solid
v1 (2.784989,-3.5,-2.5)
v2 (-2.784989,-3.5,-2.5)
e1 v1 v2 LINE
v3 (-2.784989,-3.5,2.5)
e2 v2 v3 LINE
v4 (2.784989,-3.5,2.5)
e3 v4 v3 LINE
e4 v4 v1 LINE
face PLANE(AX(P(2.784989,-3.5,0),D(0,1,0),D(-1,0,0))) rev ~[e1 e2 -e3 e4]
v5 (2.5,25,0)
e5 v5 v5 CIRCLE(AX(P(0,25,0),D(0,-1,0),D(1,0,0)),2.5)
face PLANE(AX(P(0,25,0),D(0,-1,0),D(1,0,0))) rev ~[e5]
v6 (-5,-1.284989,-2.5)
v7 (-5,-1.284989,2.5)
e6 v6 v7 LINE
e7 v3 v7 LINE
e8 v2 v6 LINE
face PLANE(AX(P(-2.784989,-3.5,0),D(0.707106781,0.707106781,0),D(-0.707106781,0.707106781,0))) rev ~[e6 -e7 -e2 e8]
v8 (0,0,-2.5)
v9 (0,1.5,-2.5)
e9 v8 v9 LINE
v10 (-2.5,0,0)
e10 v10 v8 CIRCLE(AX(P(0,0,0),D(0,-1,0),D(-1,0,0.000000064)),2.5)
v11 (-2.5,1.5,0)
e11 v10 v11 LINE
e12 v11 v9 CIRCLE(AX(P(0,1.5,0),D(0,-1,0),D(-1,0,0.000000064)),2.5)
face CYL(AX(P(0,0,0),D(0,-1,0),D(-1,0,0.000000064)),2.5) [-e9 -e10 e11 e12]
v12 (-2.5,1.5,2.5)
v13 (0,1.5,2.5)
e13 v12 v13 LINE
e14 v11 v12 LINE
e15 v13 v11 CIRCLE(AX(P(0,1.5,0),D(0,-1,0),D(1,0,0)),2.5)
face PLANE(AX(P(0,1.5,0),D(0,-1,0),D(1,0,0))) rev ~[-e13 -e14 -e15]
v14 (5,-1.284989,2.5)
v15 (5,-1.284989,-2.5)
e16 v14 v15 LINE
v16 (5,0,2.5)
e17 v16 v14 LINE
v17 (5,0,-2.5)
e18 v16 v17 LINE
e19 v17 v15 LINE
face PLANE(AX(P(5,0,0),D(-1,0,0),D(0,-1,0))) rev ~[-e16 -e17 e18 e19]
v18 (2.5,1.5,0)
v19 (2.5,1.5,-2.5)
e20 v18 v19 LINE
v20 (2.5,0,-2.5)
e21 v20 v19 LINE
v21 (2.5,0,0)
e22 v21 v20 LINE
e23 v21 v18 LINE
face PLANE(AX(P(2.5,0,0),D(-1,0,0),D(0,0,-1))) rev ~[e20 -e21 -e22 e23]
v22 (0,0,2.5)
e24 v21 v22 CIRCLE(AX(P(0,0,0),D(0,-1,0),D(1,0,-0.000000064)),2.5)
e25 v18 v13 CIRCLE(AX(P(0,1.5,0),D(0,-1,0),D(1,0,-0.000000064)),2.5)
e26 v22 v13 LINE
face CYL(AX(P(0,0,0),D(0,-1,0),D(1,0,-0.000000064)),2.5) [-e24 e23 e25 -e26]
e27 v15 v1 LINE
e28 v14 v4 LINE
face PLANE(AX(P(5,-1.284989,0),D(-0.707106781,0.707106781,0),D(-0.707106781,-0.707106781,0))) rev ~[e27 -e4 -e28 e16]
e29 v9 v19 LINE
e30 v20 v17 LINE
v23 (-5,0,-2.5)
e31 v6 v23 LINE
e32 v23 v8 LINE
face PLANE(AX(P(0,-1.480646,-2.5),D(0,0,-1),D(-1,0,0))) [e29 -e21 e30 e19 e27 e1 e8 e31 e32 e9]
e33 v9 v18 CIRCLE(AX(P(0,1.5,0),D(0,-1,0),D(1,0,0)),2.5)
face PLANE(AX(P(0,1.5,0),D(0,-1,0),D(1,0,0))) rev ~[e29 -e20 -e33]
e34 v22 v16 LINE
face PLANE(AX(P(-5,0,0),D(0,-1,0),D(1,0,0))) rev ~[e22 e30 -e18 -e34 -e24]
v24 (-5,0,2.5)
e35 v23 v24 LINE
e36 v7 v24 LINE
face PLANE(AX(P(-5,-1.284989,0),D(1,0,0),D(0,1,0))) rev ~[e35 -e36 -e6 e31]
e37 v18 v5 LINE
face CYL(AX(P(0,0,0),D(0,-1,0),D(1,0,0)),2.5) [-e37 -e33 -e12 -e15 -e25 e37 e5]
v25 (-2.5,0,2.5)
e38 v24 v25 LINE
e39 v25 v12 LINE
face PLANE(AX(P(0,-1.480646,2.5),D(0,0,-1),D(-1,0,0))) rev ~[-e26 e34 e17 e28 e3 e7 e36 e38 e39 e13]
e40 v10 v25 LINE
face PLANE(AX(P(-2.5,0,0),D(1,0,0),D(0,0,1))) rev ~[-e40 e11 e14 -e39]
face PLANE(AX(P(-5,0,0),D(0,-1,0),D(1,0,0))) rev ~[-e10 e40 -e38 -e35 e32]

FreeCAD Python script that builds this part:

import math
import FreeCAD as App
import Part
import Sketcher

V = App.Vector
Q = App.Units.Quantity


def add_polygon(sketch, points):
    """Adds a closed chain of lines whose ends are joined by coincident constraints."""
    first, n = sketch.GeometryCount, len(points)
    for a, b in zip(points, points[1:] + points[:1]):
        sketch.addGeometry(Part.LineSegment(App.Vector(*a, 0), App.Vector(*b, 0)), False)
    for i in range(n):
        sketch.addConstraint(Sketcher.Constraint("Coincident", first + i, 2, first + (i + 1) % n, 1))

doc = App.newDocument("Part")
body = doc.addObject("PartDesign::Body", "Body")

# Sketch on XY plane
sketch1 = body.newObject("Sketcher::SketchObject", "Sketch")
sketch1.AttachmentSupport = (doc.getObject("XY_Plane"), [""])
sketch1.MapMode = "FlatFace"
add_polygon(sketch1, [(5, 0), (-5, 0), (-5, -1.3), (-2.8, -3.5), (2.8, -3.5), (5, -1.3)])  # lines 0-5
sketch1.addConstraint([
    Sketcher.Constraint("Horizontal", 0),
    Sketcher.Constraint("Vertical", 1),
    Sketcher.Constraint("Horizontal", 3),
    Sketcher.Constraint("Vertical", 5),
    Sketcher.Constraint("Symmetric", 0, 2, 5, 2, -1, 1),
    Sketcher.Constraint("Perpendicular", 2, 4),
    Sketcher.Constraint("Horizontal", 1, 2, 4, 2),
    Sketcher.Constraint("Equal", 2, 4),
    Sketcher.Constraint("DistanceX", 0, 2, 0, 1, Q("10 mm")),
    Sketcher.Constraint("DistanceY", 2, 2, -1, 1, Q("3.5 mm")),
    Sketcher.Constraint("Distance", 2, Q("3.132499 mm")),
])
pad1 = body.newObject("PartDesign::Pad", "Pad")
pad1.Profile = sketch1
pad1.Length = 5
pad1.Midplane = True

# Sketch on XZ plane
sketch2 = body.newObject("Sketcher::SketchObject", "Sketch001")
sketch2.AttachmentSupport = (doc.getObject("XZ_Plane"), [""])
sketch2.MapMode = "FlatFace"
sketch2.addGeometry([
    Part.ArcOfCircle(Part.Circle(V(0, 0, 0), V(0, 0, 1), 2.5), math.radians(180), math.radians(270)),  # 0
    Part.LineSegment(V(0, -2.5, 0), V(2.5, -2.5, 0)),  # 1
    Part.LineSegment(V(2.5, -2.5, 0), V(2.5, 0, 0)),  # 2
    Part.ArcOfCircle(Part.Circle(V(0, 0, 0), V(0, 0, 1), 2.5), math.radians(0), math.radians(90)),  # 3
    Part.LineSegment(V(0, 2.5, 0), V(-2.5, 2.5, 0)),  # 4
    Part.LineSegment(V(-2.5, 2.5, 0), V(-2.5, 0, 0)),  # 5
], False)
sketch2.addConstraint([
    Sketcher.Constraint("Tangent", 0, 2, 1, 1),
    Sketcher.Constraint("Coincident", 1, 2, 2, 1),
    Sketcher.Constraint("Tangent", 2, 2, 3, 1),
    Sketcher.Constraint("Tangent", 3, 2, 4, 1),
    Sketcher.Constraint("Coincident", 4, 2, 5, 1),
    Sketcher.Constraint("Tangent", 5, 2, 0, 1),
    Sketcher.Constraint("Horizontal", 1),
    Sketcher.Constraint("Vertical", 2),
    Sketcher.Constraint("Horizontal", 4),
    Sketcher.Constraint("Vertical", 5),
    Sketcher.Constraint("Coincident", 0, 3, -1, 1),
    Sketcher.Constraint("Coincident", 3, 3, -1, 1),
    Sketcher.Constraint("Equal", 0, 3),
    Sketcher.Constraint("Radius", 0, Q("2.5 mm")),
])
pad2 = body.newObject("PartDesign::Pad", "Pad001")
pad2.Profile = sketch2
pad2.Length = 1.5
pad2.Reversed = True

# Sketch on XZ plane
sketch3 = body.newObject("Sketcher::SketchObject", "Sketch002")
sketch3.AttachmentSupport = (doc.getObject("XZ_Plane"), [""])
sketch3.MapMode = "FlatFace"
sketch3.addGeometry(Part.Circle(V(0, 0, 0), V(0, 0, 1), 2.5), False)
sketch3.addConstraint([
    Sketcher.Constraint("Coincident", 0, 3, -1, 1),
    Sketcher.Constraint("Diameter", 0, Q("5 mm")),
])
pad3 = body.newObject("PartDesign::Pad", "Pad002")
pad3.Profile = sketch3
pad3.Length = 25
pad3.Reversed = True

doc.recompute()
